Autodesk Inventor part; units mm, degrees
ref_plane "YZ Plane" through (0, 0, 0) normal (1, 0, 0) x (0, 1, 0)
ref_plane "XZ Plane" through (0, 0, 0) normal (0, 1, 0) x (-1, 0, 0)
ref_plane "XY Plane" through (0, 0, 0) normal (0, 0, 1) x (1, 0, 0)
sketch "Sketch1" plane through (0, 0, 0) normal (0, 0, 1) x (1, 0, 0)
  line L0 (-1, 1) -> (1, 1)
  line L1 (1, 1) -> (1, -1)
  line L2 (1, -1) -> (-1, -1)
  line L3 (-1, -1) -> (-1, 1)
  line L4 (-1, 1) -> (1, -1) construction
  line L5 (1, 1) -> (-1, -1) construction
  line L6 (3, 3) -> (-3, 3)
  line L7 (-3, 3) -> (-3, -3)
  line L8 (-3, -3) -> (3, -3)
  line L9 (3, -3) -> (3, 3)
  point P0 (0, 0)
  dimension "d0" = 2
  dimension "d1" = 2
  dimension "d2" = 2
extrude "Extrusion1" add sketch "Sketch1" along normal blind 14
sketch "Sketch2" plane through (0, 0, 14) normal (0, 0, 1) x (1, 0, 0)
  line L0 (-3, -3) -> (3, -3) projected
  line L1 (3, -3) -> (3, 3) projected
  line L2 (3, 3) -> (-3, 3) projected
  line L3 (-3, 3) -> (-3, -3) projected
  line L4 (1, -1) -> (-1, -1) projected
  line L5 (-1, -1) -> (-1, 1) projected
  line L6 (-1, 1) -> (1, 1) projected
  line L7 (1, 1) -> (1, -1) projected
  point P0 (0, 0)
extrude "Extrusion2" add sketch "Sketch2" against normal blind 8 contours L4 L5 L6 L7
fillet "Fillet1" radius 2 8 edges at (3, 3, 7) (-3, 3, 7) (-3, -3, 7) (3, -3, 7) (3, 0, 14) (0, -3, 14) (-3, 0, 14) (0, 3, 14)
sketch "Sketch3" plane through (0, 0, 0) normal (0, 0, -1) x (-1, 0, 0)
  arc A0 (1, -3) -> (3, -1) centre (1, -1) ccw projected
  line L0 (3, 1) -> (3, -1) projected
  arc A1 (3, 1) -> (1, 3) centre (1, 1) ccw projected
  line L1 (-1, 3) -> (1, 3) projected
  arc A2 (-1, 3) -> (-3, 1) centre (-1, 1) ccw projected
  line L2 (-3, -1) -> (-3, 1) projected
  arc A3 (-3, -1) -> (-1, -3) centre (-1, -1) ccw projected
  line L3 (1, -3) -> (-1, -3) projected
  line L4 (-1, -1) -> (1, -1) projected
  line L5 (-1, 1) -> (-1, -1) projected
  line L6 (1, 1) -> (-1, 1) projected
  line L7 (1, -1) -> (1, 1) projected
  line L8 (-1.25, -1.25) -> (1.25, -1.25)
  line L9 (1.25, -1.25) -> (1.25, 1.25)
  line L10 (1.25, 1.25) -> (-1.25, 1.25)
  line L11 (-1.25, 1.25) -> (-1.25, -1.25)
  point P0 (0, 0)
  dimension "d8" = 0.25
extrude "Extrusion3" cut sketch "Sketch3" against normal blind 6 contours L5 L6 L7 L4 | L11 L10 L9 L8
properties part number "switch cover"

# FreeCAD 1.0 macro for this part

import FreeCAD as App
import Part
import Sketcher

V = App.Vector
Q = App.Units.Quantity


def edges_at(feature, points):
    """Names of the edges that pass closest to the given points."""
    edges = feature.Shape.Edges
    near = lambda p: min(range(len(edges)), key=lambda i: edges[i].distToShape(Part.Vertex(*p))[0])
    return sorted({f"Edge{near(p) + 1}" for p in points})

doc = App.newDocument("Part")
params = doc.addObject("Spreadsheet::Sheet", "Params")
for row, (alias, value) in enumerate([
    ("sketch1_width", "2 mm"),
    ("pad1_length", "14 mm"),
    ("sketch2_width", "2 mm"),
    ("pad2_length", "8 mm"),
    ("fillet_radius", "2 mm"),
    ("sketch3_width", "2.5 mm"),
    ("pocket1_length", "6 mm"),
], start=1):
    params.set(f"A{row}", alias)
    params.set(f"B{row}", "=" + value)
    params.setAlias(f"B{row}", alias)

body = doc.addObject("PartDesign::Body", "Body")

# Sketch on XY plane
sketch1 = body.newObject("Sketcher::SketchObject", "Sketch")
sketch1.AttachmentSupport = (doc.getObject("XY_Plane"), [""])
sketch1.MapMode = "FlatFace"
sketch1.addGeometry([
    Part.LineSegment(V(3, -3, 0), V(3, 3, 0)),  # 0
    Part.LineSegment(V(3, 3, 0), V(-3, 3, 0)),  # 1
    Part.LineSegment(V(-3, 3, 0), V(-3, -3, 0)),  # 2
    Part.LineSegment(V(-3, -3, 0), V(3, -3, 0)),  # 3
    Part.LineSegment(V(-1, -1, 0), V(-1, 1, 0)),  # 4
    Part.LineSegment(V(-1, 1, 0), V(1, 1, 0)),  # 5
    Part.LineSegment(V(1, 1, 0), V(1, -1, 0)),  # 6
    Part.LineSegment(V(1, -1, 0), V(-1, -1, 0)),  # 7
], False)
sketch1.addConstraint([
    Sketcher.Constraint("Coincident", 0, 2, 1, 1),
    Sketcher.Constraint("Coincident", 1, 2, 2, 1),
    Sketcher.Constraint("Coincident", 2, 2, 3, 1),
    Sketcher.Constraint("Coincident", 3, 2, 0, 1),
    Sketcher.Constraint("Coincident", 4, 2, 5, 1),
    Sketcher.Constraint("Coincident", 5, 2, 6, 1),
    Sketcher.Constraint("Coincident", 6, 2, 7, 1),
    Sketcher.Constraint("Coincident", 7, 2, 4, 1),
    Sketcher.Constraint("Vertical", 0),
    Sketcher.Constraint("Horizontal", 1),
    Sketcher.Constraint("Vertical", 2),
    Sketcher.Constraint("Horizontal", 3),
    Sketcher.Constraint("Vertical", 4),
    Sketcher.Constraint("Horizontal", 5),
    Sketcher.Constraint("Vertical", 6),
    Sketcher.Constraint("Horizontal", 7),
    Sketcher.Constraint("Symmetric", 0, 2, 2, 2, -1, 1),
    Sketcher.Constraint("Symmetric", 4, 2, 6, 2, -1, 1),
    Sketcher.Constraint("Equal", 3, 0),
    Sketcher.Constraint("Equal", 7, 4),
    Sketcher.Constraint("DistanceX", 5, 1, 5, 2, Q("2 mm")),
    Sketcher.Constraint("DistanceX", 1, 2, 4, 2, Q("2 mm")),
])
sketch1.setExpression("Constraints[20]", "Params.sketch1_width")
pad1 = body.newObject("PartDesign::Pad", "Pad")
pad1.Profile = sketch1
pad1.setExpression("Length", "Params.pad1_length")

# Sketch on XY plane
sketch2 = body.newObject("Sketcher::SketchObject", "Sketch001")
sketch2.AttachmentSupport = (doc.getObject("XY_Plane"), [""])
sketch2.MapMode = "FlatFace"
sketch2.AttachmentOffset = App.Placement(V(0, 0, 14), App.Rotation())
sketch2.addGeometry([
    Part.LineSegment(V(-1, -1, 0), V(1, -1, 0)),
    Part.LineSegment(V(1, -1, 0), V(1, 1, 0)),
    Part.LineSegment(V(1, 1, 0), V(-1, 1, 0)),
    Part.LineSegment(V(-1, 1, 0), V(-1, -1, 0)),
], False)
sketch2.addConstraint([
    Sketcher.Constraint("Coincident", 0, 2, 1, 1),
    Sketcher.Constraint("Coincident", 1, 2, 2, 1),
    Sketcher.Constraint("Coincident", 2, 2, 3, 1),
    Sketcher.Constraint("Coincident", 3, 2, 0, 1),
    Sketcher.Constraint("Horizontal", 0),
    Sketcher.Constraint("Vertical", 1),
    Sketcher.Constraint("Horizontal", 2),
    Sketcher.Constraint("Vertical", 3),
    Sketcher.Constraint("Symmetric", 0, 2, 2, 2, -1, 1),
    Sketcher.Constraint("Equal", 2, 1),
    Sketcher.Constraint("DistanceX", 0, 1, 0, 2, Q("2 mm")),
])
sketch2.setExpression("Constraints[10]", "Params.sketch2_width")
pad2 = body.newObject("PartDesign::Pad", "Pad001")
pad2.Profile = sketch2
pad2.setExpression("Length", "Params.pad2_length")
pad2.Reversed = True
doc.recompute()

fillet = body.newObject("PartDesign::Fillet", "Fillet")
fillet.Base = (pad2, edges_at(pad2, [
    (3, 3, 7),
    (-3, 3, 7),
    (-3, -3, 7),
    (3, -3, 7),
    (3, 0, 14),
    (0, -3, 14),
    (-3, 0, 14),
    (0, 3, 14),
]))
fillet.setExpression("Radius", "Params.fillet_radius")

# Sketch on XY plane
sketch3 = body.newObject("Sketcher::SketchObject", "Sketch002")
sketch3.AttachmentSupport = (doc.getObject("XY_Plane"), [""])
sketch3.MapMode = "FlatFace"
sketch3.addGeometry([
    Part.LineSegment(V(1.25, 1.25, 0), V(1.25, -1.25, 0)),
    Part.LineSegment(V(1.25, -1.25, 0), V(-1.25, -1.25, 0)),
    Part.LineSegment(V(-1.25, -1.25, 0), V(-1.25, 1.25, 0)),
    Part.LineSegment(V(-1.25, 1.25, 0), V(1.25, 1.25, 0)),
], False)
sketch3.addConstraint([
    Sketcher.Constraint("Coincident", 0, 2, 1, 1),
    Sketcher.Constraint("Coincident", 1, 2, 2, 1),
    Sketcher.Constraint("Coincident", 2, 2, 3, 1),
    Sketcher.Constraint("Coincident", 3, 2, 0, 1),
    Sketcher.Constraint("Vertical", 0),
    Sketcher.Constraint("Horizontal", 1),
    Sketcher.Constraint("Vertical", 2),
    Sketcher.Constraint("Horizontal", 3),
    Sketcher.Constraint("Symmetric", 0, 2, 2, 2, -1, 1),
    Sketcher.Constraint("Equal", 3, 0),
    Sketcher.Constraint("DistanceX", 1, 2, 1, 1, Q("2.5 mm")),
])
sketch3.setExpression("Constraints[10]", "Params.sketch3_width")
pocket1 = body.newObject("PartDesign::Pocket", "Pocket")
pocket1.Profile = sketch3
pocket1.setExpression("Length", "Params.pocket1_length")
pocket1.Reversed = True

doc.recompute()
